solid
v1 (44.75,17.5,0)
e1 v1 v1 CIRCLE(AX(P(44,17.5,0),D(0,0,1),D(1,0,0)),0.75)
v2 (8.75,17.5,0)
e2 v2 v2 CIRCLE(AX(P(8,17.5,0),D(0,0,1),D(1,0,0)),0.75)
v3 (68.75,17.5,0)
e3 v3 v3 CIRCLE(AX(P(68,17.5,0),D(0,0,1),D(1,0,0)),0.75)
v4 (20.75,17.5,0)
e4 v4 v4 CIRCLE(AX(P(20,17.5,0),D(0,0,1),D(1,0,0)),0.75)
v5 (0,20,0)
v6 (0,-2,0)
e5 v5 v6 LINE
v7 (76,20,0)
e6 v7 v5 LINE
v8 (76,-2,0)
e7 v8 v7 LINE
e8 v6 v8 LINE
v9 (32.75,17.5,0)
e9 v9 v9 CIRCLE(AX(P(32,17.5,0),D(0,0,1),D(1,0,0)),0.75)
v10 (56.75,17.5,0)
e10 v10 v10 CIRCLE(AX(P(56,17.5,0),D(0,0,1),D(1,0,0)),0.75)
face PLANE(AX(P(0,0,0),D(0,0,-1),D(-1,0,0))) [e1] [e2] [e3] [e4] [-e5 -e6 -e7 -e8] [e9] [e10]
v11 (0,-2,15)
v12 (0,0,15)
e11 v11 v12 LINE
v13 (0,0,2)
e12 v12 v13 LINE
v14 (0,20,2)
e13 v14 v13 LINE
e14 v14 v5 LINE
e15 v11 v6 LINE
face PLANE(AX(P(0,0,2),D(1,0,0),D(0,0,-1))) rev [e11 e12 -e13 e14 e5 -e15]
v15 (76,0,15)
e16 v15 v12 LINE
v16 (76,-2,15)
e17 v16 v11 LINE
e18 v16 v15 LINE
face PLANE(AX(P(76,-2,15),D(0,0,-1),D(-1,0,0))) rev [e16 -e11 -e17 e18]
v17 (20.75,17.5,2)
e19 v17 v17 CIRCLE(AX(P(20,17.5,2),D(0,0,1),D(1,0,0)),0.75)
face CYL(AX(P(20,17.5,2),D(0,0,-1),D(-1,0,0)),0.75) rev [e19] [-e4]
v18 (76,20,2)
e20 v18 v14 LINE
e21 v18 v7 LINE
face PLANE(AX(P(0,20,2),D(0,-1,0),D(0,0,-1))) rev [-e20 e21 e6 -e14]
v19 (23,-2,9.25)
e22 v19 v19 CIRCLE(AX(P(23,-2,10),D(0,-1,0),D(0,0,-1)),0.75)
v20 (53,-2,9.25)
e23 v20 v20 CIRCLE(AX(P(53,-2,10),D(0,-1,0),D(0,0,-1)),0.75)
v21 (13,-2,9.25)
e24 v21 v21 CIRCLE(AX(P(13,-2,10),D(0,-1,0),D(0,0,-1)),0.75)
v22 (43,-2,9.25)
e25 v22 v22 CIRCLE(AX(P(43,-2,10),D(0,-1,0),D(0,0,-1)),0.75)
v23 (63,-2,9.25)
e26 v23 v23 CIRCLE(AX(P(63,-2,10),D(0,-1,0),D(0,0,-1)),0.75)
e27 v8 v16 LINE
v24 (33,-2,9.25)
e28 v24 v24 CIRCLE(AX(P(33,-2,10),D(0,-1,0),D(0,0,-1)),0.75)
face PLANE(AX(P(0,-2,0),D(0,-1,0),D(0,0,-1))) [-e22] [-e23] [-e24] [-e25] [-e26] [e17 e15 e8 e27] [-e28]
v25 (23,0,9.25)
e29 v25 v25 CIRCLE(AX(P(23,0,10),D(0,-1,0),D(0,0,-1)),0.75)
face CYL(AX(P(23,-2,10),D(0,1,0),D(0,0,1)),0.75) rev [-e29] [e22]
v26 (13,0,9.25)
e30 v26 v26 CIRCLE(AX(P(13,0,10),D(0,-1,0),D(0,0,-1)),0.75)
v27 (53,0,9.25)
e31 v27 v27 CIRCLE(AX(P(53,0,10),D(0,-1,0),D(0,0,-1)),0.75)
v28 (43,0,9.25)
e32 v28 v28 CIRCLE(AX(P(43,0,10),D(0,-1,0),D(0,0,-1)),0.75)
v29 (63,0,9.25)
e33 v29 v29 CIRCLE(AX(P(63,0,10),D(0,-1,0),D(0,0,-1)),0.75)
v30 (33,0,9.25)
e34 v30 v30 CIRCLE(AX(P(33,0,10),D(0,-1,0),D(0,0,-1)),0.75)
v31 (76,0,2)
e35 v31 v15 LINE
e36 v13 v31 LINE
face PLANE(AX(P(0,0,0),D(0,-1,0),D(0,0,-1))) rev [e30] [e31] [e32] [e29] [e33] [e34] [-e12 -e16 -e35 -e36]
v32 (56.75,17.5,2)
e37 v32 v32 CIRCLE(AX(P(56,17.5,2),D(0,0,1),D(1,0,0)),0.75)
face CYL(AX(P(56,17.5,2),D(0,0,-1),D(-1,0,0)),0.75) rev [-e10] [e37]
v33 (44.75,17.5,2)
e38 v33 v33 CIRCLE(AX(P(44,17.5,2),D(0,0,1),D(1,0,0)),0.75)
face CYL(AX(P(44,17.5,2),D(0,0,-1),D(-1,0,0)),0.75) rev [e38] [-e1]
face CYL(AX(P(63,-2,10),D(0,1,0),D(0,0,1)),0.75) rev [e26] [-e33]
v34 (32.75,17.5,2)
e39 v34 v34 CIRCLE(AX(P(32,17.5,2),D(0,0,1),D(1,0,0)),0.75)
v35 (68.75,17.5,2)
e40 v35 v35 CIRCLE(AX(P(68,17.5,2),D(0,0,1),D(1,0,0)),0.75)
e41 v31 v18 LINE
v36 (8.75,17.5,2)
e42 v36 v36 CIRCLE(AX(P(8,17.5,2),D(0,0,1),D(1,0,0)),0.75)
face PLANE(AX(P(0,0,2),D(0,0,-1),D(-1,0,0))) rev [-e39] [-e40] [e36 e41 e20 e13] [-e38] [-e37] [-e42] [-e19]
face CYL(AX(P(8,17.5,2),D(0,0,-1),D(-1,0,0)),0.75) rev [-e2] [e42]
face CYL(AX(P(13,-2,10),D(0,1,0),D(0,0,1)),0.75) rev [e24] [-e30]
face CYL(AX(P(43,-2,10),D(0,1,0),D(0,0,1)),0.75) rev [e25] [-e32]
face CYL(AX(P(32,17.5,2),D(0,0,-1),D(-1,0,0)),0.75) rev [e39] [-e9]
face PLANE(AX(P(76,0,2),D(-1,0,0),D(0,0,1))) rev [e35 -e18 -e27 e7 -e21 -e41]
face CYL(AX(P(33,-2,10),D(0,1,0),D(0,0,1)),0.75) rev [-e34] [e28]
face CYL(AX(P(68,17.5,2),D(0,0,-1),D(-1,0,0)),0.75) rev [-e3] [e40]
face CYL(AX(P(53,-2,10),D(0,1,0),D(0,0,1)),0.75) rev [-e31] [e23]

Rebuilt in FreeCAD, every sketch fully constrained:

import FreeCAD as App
import Part
import Sketcher
from FreeCAD import Vector
Q = App.Units.Quantity

doc = App.newDocument("Part")
body = doc.addObject("PartDesign::Body", "Body")

# Sketch on XY plane
sketch1 = body.newObject("Sketcher::SketchObject", "Sketch")
sketch1.AttachmentSupport = (doc.getObject("XY_Plane"), [""])
sketch1.MapMode = "FlatFace"
sketch1.addGeometry([
    Part.LineSegment(Vector(0, 20, 0), Vector(0, 0, 0)),  # 0
    Part.LineSegment(Vector(0, 0, 0), Vector(76, 0, 0)),  # 1
    Part.LineSegment(Vector(76, 0, 0), Vector(76, 20, 0)),  # 2
    Part.LineSegment(Vector(76, 20, 0), Vector(0, 20, 0)),  # 3
    Part.Circle(Vector(8, 17.5, 0), Vector(0, 0, 1), 0.8),  # 4
    Part.Circle(Vector(20, 17.5, 0), Vector(0, 0, 1), 0.8),  # 5
    Part.Circle(Vector(32, 17.5, 0), Vector(0, 0, 1), 0.8),  # 6
    Part.Circle(Vector(44, 17.5, 0), Vector(0, 0, 1), 0.8),  # 7
    Part.Circle(Vector(56, 17.5, 0), Vector(0, 0, 1), 0.8),  # 8
    Part.Circle(Vector(68, 17.5, 0), Vector(0, 0, 1), 0.8),  # 9
], False)
sketch1.addConstraint([
    Sketcher.Constraint("Coincident", 0, 2, 1, 1),
    Sketcher.Constraint("Coincident", 1, 2, 2, 1),
    Sketcher.Constraint("Coincident", 2, 2, 3, 1),
    Sketcher.Constraint("Coincident", 3, 2, 0, 1),
    Sketcher.Constraint("Vertical", 0),
    Sketcher.Constraint("Horizontal", 1),
    Sketcher.Constraint("Vertical", 2),
    Sketcher.Constraint("Horizontal", 3),
    Sketcher.Constraint("Coincident", 0, 2, -1, 1),
    Sketcher.Constraint("Equal", 4, 5),
    Sketcher.Constraint("Equal", 5, 6),
    Sketcher.Constraint("Equal", 6, 7),
    Sketcher.Constraint("Equal", 7, 8),
    Sketcher.Constraint("Equal", 8, 9),
    Sketcher.Constraint("Horizontal", 4, 3, 5, 3),
    Sketcher.Constraint("Horizontal", 5, 3, 6, 3),
    Sketcher.Constraint("Horizontal", 6, 3, 7, 3),
    Sketcher.Constraint("Horizontal", 7, 3, 8, 3),
    Sketcher.Constraint("Horizontal", 8, 3, 9, 3),
    Sketcher.Constraint("Diameter", 4, Q("1.5 mm")),
    Sketcher.Constraint("DistanceX", 1, 1, 1, 2, Q("76 mm")),
    Sketcher.Constraint("DistanceY", 0, 2, 0, 1, Q("20 mm")),
    Sketcher.Constraint("DistanceX", -1, 1, 4, 3, Q("8 mm")),
    Sketcher.Constraint("DistanceX", -1, 1, 5, 3, Q("20 mm")),
    Sketcher.Constraint("DistanceX", -1, 1, 6, 3, Q("32 mm")),
    Sketcher.Constraint("DistanceX", -1, 1, 7, 3, Q("44 mm")),
    Sketcher.Constraint("DistanceX", -1, 1, 8, 3, Q("56 mm")),
    Sketcher.Constraint("DistanceX", -1, 1, 9, 3, Q("68 mm")),
    Sketcher.Constraint("DistanceY", -1, 1, 4, 3, Q("17.5 mm")),
])
pad1 = body.newObject("PartDesign::Pad", "Pad")
pad1.Profile = sketch1
pad1.Length = 2

# Sketch on XZ plane
sketch2 = body.newObject("Sketcher::SketchObject", "Sketch001")
sketch2.AttachmentSupport = (doc.getObject("XZ_Plane"), [""])
sketch2.MapMode = "FlatFace"
sketch2.addGeometry([
    Part.LineSegment(Vector(76, 0, 0), Vector(76, 15, 0)),  # 0
    Part.LineSegment(Vector(76, 15, 0), Vector(0, 15, 0)),  # 1
    Part.LineSegment(Vector(0, 15, 0), Vector(0, 0, 0)),  # 2
    Part.LineSegment(Vector(0, 0, 0), Vector(76, 0, 0)),  # 3
    Part.Circle(Vector(63, 10, 0), Vector(0, 0, 1), 0.8),  # 4
    Part.Circle(Vector(53, 10, 0), Vector(0, 0, 1), 0.8),  # 5
    Part.Circle(Vector(43, 10, 0), Vector(0, 0, 1), 0.8),  # 6
    Part.Circle(Vector(33, 10, 0), Vector(0, 0, 1), 0.8),  # 7
    Part.Circle(Vector(23, 10, 0), Vector(0, 0, 1), 0.8),  # 8
    Part.Circle(Vector(13, 10, 0), Vector(0, 0, 1), 0.8),  # 9
], False)
sketch2.addConstraint([
    Sketcher.Constraint("Coincident", 0, 2, 1, 1),
    Sketcher.Constraint("Coincident", 1, 2, 2, 1),
    Sketcher.Constraint("Coincident", 2, 2, 3, 1),
    Sketcher.Constraint("Coincident", 3, 2, 0, 1),
    Sketcher.Constraint("Vertical", 0),
    Sketcher.Constraint("Horizontal", 1),
    Sketcher.Constraint("Vertical", 2),
    Sketcher.Constraint("Horizontal", 3),
    Sketcher.Constraint("Coincident", 2, 2, -1, 1),
    Sketcher.Constraint("Equal", 4, 5),
    Sketcher.Constraint("Equal", 5, 6),
    Sketcher.Constraint("Equal", 6, 7),
    Sketcher.Constraint("Equal", 7, 8),
    Sketcher.Constraint("Equal", 8, 9),
    Sketcher.Constraint("Horizontal", 4, 3, 5, 3),
    Sketcher.Constraint("Horizontal", 5, 3, 6, 3),
    Sketcher.Constraint("Horizontal", 6, 3, 7, 3),
    Sketcher.Constraint("Horizontal", 7, 3, 8, 3),
    Sketcher.Constraint("Horizontal", 8, 3, 9, 3),
    Sketcher.Constraint("Diameter", 4, Q("1.5 mm")),
    Sketcher.Constraint("DistanceX", 1, 2, 1, 1, Q("76 mm")),
    Sketcher.Constraint("DistanceY", 0, 1, 0, 2, Q("15 mm")),
    Sketcher.Constraint("DistanceX", -1, 1, 4, 3, Q("63 mm")),
    Sketcher.Constraint("DistanceY", -1, 1, 4, 3, Q("10 mm")),
    Sketcher.Constraint("DistanceX", -1, 1, 5, 3, Q("53 mm")),
    Sketcher.Constraint("DistanceX", -1, 1, 6, 3, Q("43 mm")),
    Sketcher.Constraint("DistanceX", -1, 1, 7, 3, Q("33 mm")),
    Sketcher.Constraint("DistanceX", -1, 1, 8, 3, Q("23 mm")),
    Sketcher.Constraint("DistanceX", -1, 1, 9, 3, Q("13 mm")),
])
pad2 = body.newObject("PartDesign::Pad", "Pad001")
pad2.Profile = sketch2
pad2.Length = 2

doc.recompute()
